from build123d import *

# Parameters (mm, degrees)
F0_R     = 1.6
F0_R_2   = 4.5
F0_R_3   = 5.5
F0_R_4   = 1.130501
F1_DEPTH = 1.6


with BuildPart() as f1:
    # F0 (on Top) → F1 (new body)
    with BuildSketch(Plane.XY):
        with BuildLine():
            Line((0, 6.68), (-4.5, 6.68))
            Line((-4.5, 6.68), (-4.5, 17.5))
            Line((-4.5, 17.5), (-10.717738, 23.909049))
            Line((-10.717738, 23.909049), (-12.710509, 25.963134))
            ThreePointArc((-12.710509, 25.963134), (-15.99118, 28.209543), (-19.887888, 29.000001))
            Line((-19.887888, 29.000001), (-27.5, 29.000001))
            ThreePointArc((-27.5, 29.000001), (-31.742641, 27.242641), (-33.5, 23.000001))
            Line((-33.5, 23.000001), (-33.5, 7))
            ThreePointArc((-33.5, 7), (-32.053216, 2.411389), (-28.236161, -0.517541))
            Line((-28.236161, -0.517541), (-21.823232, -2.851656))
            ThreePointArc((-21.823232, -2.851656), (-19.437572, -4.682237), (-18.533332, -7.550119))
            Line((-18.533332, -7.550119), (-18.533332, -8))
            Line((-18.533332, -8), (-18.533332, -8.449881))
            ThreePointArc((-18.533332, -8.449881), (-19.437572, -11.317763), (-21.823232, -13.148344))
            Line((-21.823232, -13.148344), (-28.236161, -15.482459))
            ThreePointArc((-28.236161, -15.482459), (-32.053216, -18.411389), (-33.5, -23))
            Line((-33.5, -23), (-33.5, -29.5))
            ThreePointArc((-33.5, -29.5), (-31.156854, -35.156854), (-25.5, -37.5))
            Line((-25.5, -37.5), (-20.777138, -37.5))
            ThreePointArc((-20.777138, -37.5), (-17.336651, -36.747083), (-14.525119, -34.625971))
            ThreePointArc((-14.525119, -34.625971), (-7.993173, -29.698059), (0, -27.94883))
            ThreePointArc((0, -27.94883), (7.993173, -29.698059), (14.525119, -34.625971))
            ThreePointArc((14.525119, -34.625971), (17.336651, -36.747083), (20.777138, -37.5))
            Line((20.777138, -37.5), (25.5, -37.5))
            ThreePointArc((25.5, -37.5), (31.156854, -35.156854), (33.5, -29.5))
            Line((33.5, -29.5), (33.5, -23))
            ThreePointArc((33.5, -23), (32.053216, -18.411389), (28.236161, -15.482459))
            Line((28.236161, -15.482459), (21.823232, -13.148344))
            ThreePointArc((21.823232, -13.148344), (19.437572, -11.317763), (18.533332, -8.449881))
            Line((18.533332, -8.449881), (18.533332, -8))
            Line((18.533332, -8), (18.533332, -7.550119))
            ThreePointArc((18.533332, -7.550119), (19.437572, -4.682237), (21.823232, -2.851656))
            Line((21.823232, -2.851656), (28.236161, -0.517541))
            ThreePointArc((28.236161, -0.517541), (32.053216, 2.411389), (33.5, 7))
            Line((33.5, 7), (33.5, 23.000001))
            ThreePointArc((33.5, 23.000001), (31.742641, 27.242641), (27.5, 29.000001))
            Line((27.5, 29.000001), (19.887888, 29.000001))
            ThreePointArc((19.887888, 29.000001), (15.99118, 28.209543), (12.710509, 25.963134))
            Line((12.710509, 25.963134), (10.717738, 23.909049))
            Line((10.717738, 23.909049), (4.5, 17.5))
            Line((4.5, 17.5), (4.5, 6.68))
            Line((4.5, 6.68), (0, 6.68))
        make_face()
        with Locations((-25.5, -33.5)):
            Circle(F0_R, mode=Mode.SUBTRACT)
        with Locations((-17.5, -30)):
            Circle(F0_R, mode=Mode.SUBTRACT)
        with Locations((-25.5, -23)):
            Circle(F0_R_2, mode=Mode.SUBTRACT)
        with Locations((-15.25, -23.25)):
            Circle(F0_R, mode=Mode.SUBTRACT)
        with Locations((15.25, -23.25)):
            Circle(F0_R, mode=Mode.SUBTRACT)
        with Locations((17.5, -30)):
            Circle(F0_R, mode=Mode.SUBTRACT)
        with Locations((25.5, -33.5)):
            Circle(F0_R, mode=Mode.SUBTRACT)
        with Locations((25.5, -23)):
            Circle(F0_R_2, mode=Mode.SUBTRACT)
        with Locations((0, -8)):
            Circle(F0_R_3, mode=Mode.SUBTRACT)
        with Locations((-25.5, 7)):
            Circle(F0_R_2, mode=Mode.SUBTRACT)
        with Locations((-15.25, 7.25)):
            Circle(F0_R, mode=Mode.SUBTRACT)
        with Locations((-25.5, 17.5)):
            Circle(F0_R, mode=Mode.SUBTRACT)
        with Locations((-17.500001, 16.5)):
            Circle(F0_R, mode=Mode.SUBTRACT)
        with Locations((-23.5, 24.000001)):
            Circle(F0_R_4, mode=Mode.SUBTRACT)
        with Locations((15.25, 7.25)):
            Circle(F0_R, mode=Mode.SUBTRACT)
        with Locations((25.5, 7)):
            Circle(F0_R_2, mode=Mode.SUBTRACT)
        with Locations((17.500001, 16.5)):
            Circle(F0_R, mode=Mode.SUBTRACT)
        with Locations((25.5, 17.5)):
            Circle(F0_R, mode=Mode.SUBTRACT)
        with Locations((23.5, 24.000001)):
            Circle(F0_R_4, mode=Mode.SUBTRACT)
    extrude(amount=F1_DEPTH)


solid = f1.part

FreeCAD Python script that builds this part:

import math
import FreeCAD as App
import Part
import Sketcher
Q = App.Units.Quantity

doc = App.newDocument("Part")
body = doc.addObject("PartDesign::Body", "Body")

sketch1 = doc.addObject("Sketcher::SketchObject", "Sketch")
body.addObject(sketch1)
sketch1.AttachmentSupport = (doc.XY_Plane, [""])
sketch1.MapMode = "FlatFace"
sketch1.addGeometry(Part.LineSegment(App.Vector(-4.5, 6.7, 0), App.Vector(-4.5, 17.5, 0)), False)
sketch1.addGeometry(Part.LineSegment(App.Vector(-4.5, 17.5, 0), App.Vector(-10.7, 23.9, 0)), False)
sketch1.addGeometry(Part.LineSegment(App.Vector(-10.7, 23.9, 0), App.Vector(-12.7, 26, 0)), False)
sketch1.addGeometry(Part.ArcOfCircle(Part.Circle(App.Vector(-19.9, 19, 0), App.Vector(0, 0, 1), 10), math.radians(44), math.radians(90)), False)
sketch1.addGeometry(Part.LineSegment(App.Vector(-19.9, 29, 0), App.Vector(-27.5, 29, 0)), False)
sketch1.addGeometry(Part.ArcOfCircle(Part.Circle(App.Vector(-27.5, 23, 0), App.Vector(0, 0, 1), 6), math.radians(90), math.radians(180)), False)
sketch1.addGeometry(Part.LineSegment(App.Vector(-33.5, 23, 0), App.Vector(-33.5, 7, 0)), False)
sketch1.addGeometry(Part.ArcOfCircle(Part.Circle(App.Vector(-25.5, 7, 0), App.Vector(0, 0, 1), 8), math.radians(-180), math.radians(-110)), False)
sketch1.addGeometry(Part.LineSegment(App.Vector(-28.2, -0.5, 0), App.Vector(-21.8, -2.9, 0)), False)
sketch1.addGeometry(Part.ArcOfCircle(Part.Circle(App.Vector(-23.5, -7.6, 0), App.Vector(0, 0, 1), 5), math.radians(0), math.radians(70)), False)
sketch1.addGeometry(Part.LineSegment(App.Vector(-18.5, -7.6, 0), App.Vector(-18.5, -8.4, 0)), False)
sketch1.addGeometry(Part.ArcOfCircle(Part.Circle(App.Vector(-23.5, -8.4, 0), App.Vector(0, 0, 1), 5), math.radians(-70), math.radians(0)), False)
sketch1.addGeometry(Part.LineSegment(App.Vector(-21.8, -13.1, 0), App.Vector(-28.2, -15.5, 0)), False)
sketch1.addGeometry(Part.ArcOfCircle(Part.Circle(App.Vector(-25.5, -23, 0), App.Vector(0, 0, 1), 8), math.radians(110), math.radians(180)), False)
sketch1.addGeometry(Part.LineSegment(App.Vector(-33.5, -23, 0), App.Vector(-33.5, -29.5, 0)), False)
sketch1.addGeometry(Part.ArcOfCircle(Part.Circle(App.Vector(-25.5, -29.5, 0), App.Vector(0, 0, 1), 8), math.radians(-180), math.radians(-90)), False)
sketch1.addGeometry(Part.LineSegment(App.Vector(-25.5, -37.5, 0), App.Vector(-20.8, -37.5, 0)), False)
sketch1.addGeometry(Part.ArcOfCircle(Part.Circle(App.Vector(-20.8, -29.3, 0), App.Vector(0, 0, 1), 8.2), math.radians(-90), math.radians(-41)), False)
sketch1.addGeometry(Part.ArcOfCircle(Part.Circle(App.Vector(0, -47.1, 0), App.Vector(0, 0, 1), 19.1), math.radians(90), math.radians(139)), False)
sketch1.addGeometry(Part.ArcOfCircle(Part.Circle(App.Vector(0, -47.1, 0), App.Vector(0, 0, 1), 19.1), math.radians(41), math.radians(90)), False)
sketch1.addGeometry(Part.ArcOfCircle(Part.Circle(App.Vector(20.8, -29.3, 0), App.Vector(0, 0, 1), 8.2), math.radians(-139), math.radians(-90)), False)
sketch1.addGeometry(Part.LineSegment(App.Vector(20.8, -37.5, 0), App.Vector(25.5, -37.5, 0)), False)
sketch1.addGeometry(Part.ArcOfCircle(Part.Circle(App.Vector(25.5, -29.5, 0), App.Vector(0, 0, 1), 8), math.radians(-90), math.radians(0)), False)
sketch1.addGeometry(Part.LineSegment(App.Vector(33.5, -29.5, 0), App.Vector(33.5, -23, 0)), False)
sketch1.addGeometry(Part.ArcOfCircle(Part.Circle(App.Vector(25.5, -23, 0), App.Vector(0, 0, 1), 8), math.radians(0), math.radians(70)), False)
sketch1.addGeometry(Part.LineSegment(App.Vector(28.2, -15.5, 0), App.Vector(21.8, -13.1, 0)), False)
sketch1.addGeometry(Part.ArcOfCircle(Part.Circle(App.Vector(23.5, -8.4, 0), App.Vector(0, 0, 1), 5), math.radians(-180), math.radians(-110)), False)
sketch1.addGeometry(Part.LineSegment(App.Vector(18.5, -8.4, 0), App.Vector(18.5, -7.6, 0)), False)
sketch1.addGeometry(Part.ArcOfCircle(Part.Circle(App.Vector(23.5, -7.6, 0), App.Vector(0, 0, 1), 5), math.radians(110), math.radians(180)), False)
sketch1.addGeometry(Part.LineSegment(App.Vector(21.8, -2.9, 0), App.Vector(28.2, -0.5, 0)), False)
sketch1.addGeometry(Part.ArcOfCircle(Part.Circle(App.Vector(25.5, 7, 0), App.Vector(0, 0, 1), 8), math.radians(-70), math.radians(0)), False)
sketch1.addGeometry(Part.LineSegment(App.Vector(33.5, 7, 0), App.Vector(33.5, 23, 0)), False)
sketch1.addGeometry(Part.ArcOfCircle(Part.Circle(App.Vector(27.5, 23, 0), App.Vector(0, 0, 1), 6), math.radians(0), math.radians(90)), False)
sketch1.addGeometry(Part.LineSegment(App.Vector(27.5, 29, 0), App.Vector(19.9, 29, 0)), False)
sketch1.addGeometry(Part.ArcOfCircle(Part.Circle(App.Vector(19.9, 19, 0), App.Vector(0, 0, 1), 10), math.radians(90), math.radians(136)), False)
sketch1.addGeometry(Part.LineSegment(App.Vector(12.7, 26, 0), App.Vector(10.7, 23.9, 0)), False)
sketch1.addGeometry(Part.LineSegment(App.Vector(10.7, 23.9, 0), App.Vector(4.5, 17.5, 0)), False)
sketch1.addGeometry(Part.LineSegment(App.Vector(4.5, 17.5, 0), App.Vector(4.5, 6.7, 0)), False)
sketch1.addGeometry(Part.LineSegment(App.Vector(4.5, 6.7, 0), App.Vector(-4.5, 6.7, 0)), False)
sketch1.addGeometry(Part.Circle(App.Vector(-25.5, -33.5, 0), App.Vector(0, 0, 1), 1.6), False)
sketch1.addGeometry(Part.Circle(App.Vector(-17.5, -30, 0), App.Vector(0, 0, 1), 1.6), False)
sketch1.addGeometry(Part.Circle(App.Vector(-25.5, -23, 0), App.Vector(0, 0, 1), 4.5), False)
sketch1.addGeometry(Part.Circle(App.Vector(-15.2, -23.2, 0), App.Vector(0, 0, 1), 1.6), False)
sketch1.addGeometry(Part.Circle(App.Vector(17.5, -30, 0), App.Vector(0, 0, 1), 1.6), False)
sketch1.addGeometry(Part.Circle(App.Vector(25.5, -33.5, 0), App.Vector(0, 0, 1), 1.6), False)
sketch1.addGeometry(Part.Circle(App.Vector(15.2, -23.2, 0), App.Vector(0, 0, 1), 1.6), False)
sketch1.addGeometry(Part.Circle(App.Vector(25.5, -23, 0), App.Vector(0, 0, 1), 4.5), False)
sketch1.addGeometry(Part.Circle(App.Vector(0, -8, 0), App.Vector(0, 0, 1), 5.5), False)
sketch1.addGeometry(Part.Circle(App.Vector(-25.5, 7, 0), App.Vector(0, 0, 1), 4.5), False)
sketch1.addGeometry(Part.Circle(App.Vector(-15.2, 7.2, 0), App.Vector(0, 0, 1), 1.6), False)
sketch1.addGeometry(Part.Circle(App.Vector(-25.5, 17.5, 0), App.Vector(0, 0, 1), 1.6), False)
sketch1.addGeometry(Part.Circle(App.Vector(-17.5, 16.5, 0), App.Vector(0, 0, 1), 1.6), False)
sketch1.addGeometry(Part.Circle(App.Vector(-23.5, 24, 0), App.Vector(0, 0, 1), 1.1), False)
sketch1.addGeometry(Part.Circle(App.Vector(15.2, 7.2, 0), App.Vector(0, 0, 1), 1.6), False)
sketch1.addGeometry(Part.Circle(App.Vector(25.5, 7, 0), App.Vector(0, 0, 1), 4.5), False)
sketch1.addGeometry(Part.Circle(App.Vector(17.5, 16.5, 0), App.Vector(0, 0, 1), 1.6), False)
sketch1.addGeometry(Part.Circle(App.Vector(25.5, 17.5, 0), App.Vector(0, 0, 1), 1.6), False)
sketch1.addGeometry(Part.Circle(App.Vector(23.5, 24, 0), App.Vector(0, 0, 1), 1.1), False)
sketch1.addConstraint(Sketcher.Constraint("Coincident", 0, 2, 1, 1))
sketch1.addConstraint(Sketcher.Constraint("Coincident", 1, 2, 2, 1))
sketch1.addConstraint(Sketcher.Constraint("Tangent", 2, 2, 3, 1))
sketch1.addConstraint(Sketcher.Constraint("Tangent", 3, 2, 4, 1))
sketch1.addConstraint(Sketcher.Constraint("Tangent", 4, 2, 5, 1))
sketch1.addConstraint(Sketcher.Constraint("Tangent", 5, 2, 6, 1))
sketch1.addConstraint(Sketcher.Constraint("Tangent", 6, 2, 7, 1))
sketch1.addConstraint(Sketcher.Constraint("Tangent", 7, 2, 8, 1))
sketch1.addConstraint(Sketcher.Constraint("Tangent", 8, 2, 9, 2))
sketch1.addConstraint(Sketcher.Constraint("Tangent", 9, 1, 10, 1))
sketch1.addConstraint(Sketcher.Constraint("Tangent", 10, 2, 11, 2))
sketch1.addConstraint(Sketcher.Constraint("Tangent", 11, 1, 12, 1))
sketch1.addConstraint(Sketcher.Constraint("Tangent", 12, 2, 13, 1))
sketch1.addConstraint(Sketcher.Constraint("Tangent", 13, 2, 14, 1))
sketch1.addConstraint(Sketcher.Constraint("Tangent", 14, 2, 15, 1))
sketch1.addConstraint(Sketcher.Constraint("Tangent", 15, 2, 16, 1))
sketch1.addConstraint(Sketcher.Constraint("Tangent", 16, 2, 17, 1))
sketch1.addConstraint(Sketcher.Constraint("Tangent", 17, 2, 18, 2))
sketch1.addConstraint(Sketcher.Constraint("Tangent", 18, 1, 19, 2))
sketch1.addConstraint(Sketcher.Constraint("Tangent", 19, 1, 20, 1))
sketch1.addConstraint(Sketcher.Constraint("Tangent", 20, 2, 21, 1))
sketch1.addConstraint(Sketcher.Constraint("Tangent", 21, 2, 22, 1))
sketch1.addConstraint(Sketcher.Constraint("Tangent", 22, 2, 23, 1))
sketch1.addConstraint(Sketcher.Constraint("Tangent", 23, 2, 24, 1))
sketch1.addConstraint(Sketcher.Constraint("Tangent", 24, 2, 25, 1))
sketch1.addConstraint(Sketcher.Constraint("Tangent", 25, 2, 26, 2))
sketch1.addConstraint(Sketcher.Constraint("Tangent", 26, 1, 27, 1))
sketch1.addConstraint(Sketcher.Constraint("Tangent", 27, 2, 28, 2))
sketch1.addConstraint(Sketcher.Constraint("Tangent", 28, 1, 29, 1))
sketch1.addConstraint(Sketcher.Constraint("Tangent", 29, 2, 30, 1))
sketch1.addConstraint(Sketcher.Constraint("Tangent", 30, 2, 31, 1))
sketch1.addConstraint(Sketcher.Constraint("Tangent", 31, 2, 32, 1))
sketch1.addConstraint(Sketcher.Constraint("Tangent", 32, 2, 33, 1))
sketch1.addConstraint(Sketcher.Constraint("Tangent", 33, 2, 34, 1))
sketch1.addConstraint(Sketcher.Constraint("Tangent", 34, 2, 35, 1))
sketch1.addConstraint(Sketcher.Constraint("Coincident", 35, 2, 36, 1))
sketch1.addConstraint(Sketcher.Constraint("Coincident", 36, 2, 37, 1))
sketch1.addConstraint(Sketcher.Constraint("Coincident", 37, 2, 38, 1))
sketch1.addConstraint(Sketcher.Constraint("Coincident", 38, 2, 0, 1))
sketch1.addConstraint(Sketcher.Constraint("Vertical", 0))
sketch1.addConstraint(Sketcher.Constraint("Horizontal", 4))
sketch1.addConstraint(Sketcher.Constraint("Vertical", 6))
sketch1.addConstraint(Sketcher.Constraint("Vertical", 10))
sketch1.addConstraint(Sketcher.Constraint("Vertical", 14))
sketch1.addConstraint(Sketcher.Constraint("Horizontal", 16))
sketch1.addConstraint(Sketcher.Constraint("Horizontal", 21))
sketch1.addConstraint(Sketcher.Constraint("Vertical", 23))
sketch1.addConstraint(Sketcher.Constraint("Vertical", 27))
sketch1.addConstraint(Sketcher.Constraint("Vertical", 31))
sketch1.addConstraint(Sketcher.Constraint("Horizontal", 33))
sketch1.addConstraint(Sketcher.Constraint("Vertical", 37))
sketch1.addConstraint(Sketcher.Constraint("Horizontal", 38))
sketch1.addConstraint(Sketcher.Constraint("Coincident", 41, 3, 13, 3))
sketch1.addConstraint(Sketcher.Constraint("Coincident", 46, 3, 24, 3))
sketch1.addConstraint(Sketcher.Constraint("Coincident", 48, 3, 7, 3))
sketch1.addConstraint(Sketcher.Constraint("Coincident", 54, 3, 30, 3))
sketch1.addConstraint(Sketcher.Constraint("Equal", 9, 11))
sketch1.addConstraint(Sketcher.Constraint("Equal", 7, 13))
sketch1.addConstraint(Sketcher.Constraint("Equal", 13, 15))
sketch1.addConstraint(Sketcher.Constraint("Equal", 18, 19))
sketch1.addConstraint(Sketcher.Constraint("Equal", 17, 20))
sketch1.addConstraint(Sketcher.Constraint("Equal", 15, 22))
sketch1.addConstraint(Sketcher.Constraint("Equal", 22, 24))
sketch1.addConstraint(Sketcher.Constraint("Equal", 11, 26))
sketch1.addConstraint(Sketcher.Constraint("Equal", 26, 28))
sketch1.addConstraint(Sketcher.Constraint("Equal", 24, 30))
sketch1.addConstraint(Sketcher.Constraint("Equal", 5, 32))
sketch1.addConstraint(Sketcher.Constraint("Equal", 3, 34))
sketch1.addConstraint(Sketcher.Constraint("Equal", 39, 40))
sketch1.addConstraint(Sketcher.Constraint("Equal", 40, 42))
sketch1.addConstraint(Sketcher.Constraint("Equal", 42, 43))
sketch1.addConstraint(Sketcher.Constraint("Equal", 43, 44))
sketch1.addConstraint(Sketcher.Constraint("Equal", 44, 45))
sketch1.addConstraint(Sketcher.Constraint("Equal", 41, 46))
sketch1.addConstraint(Sketcher.Constraint("Equal", 46, 48))
sketch1.addConstraint(Sketcher.Constraint("Equal", 45, 49))
sketch1.addConstraint(Sketcher.Constraint("Equal", 49, 50))
sketch1.addConstraint(Sketcher.Constraint("Equal", 50, 51))
sketch1.addConstraint(Sketcher.Constraint("Equal", 51, 53))
sketch1.addConstraint(Sketcher.Constraint("Equal", 48, 54))
sketch1.addConstraint(Sketcher.Constraint("Equal", 53, 55))
sketch1.addConstraint(Sketcher.Constraint("Equal", 55, 56))
sketch1.addConstraint(Sketcher.Constraint("Equal", 52, 57))
sketch1.addConstraint(Sketcher.Constraint("Symmetric", 5, 2, 23, 2, -1, 1))
sketch1.addConstraint(Sketcher.Constraint("Symmetric", 13, 2, 31, 2, -1, 1))
sketch1.addConstraint(Sketcher.Constraint("Symmetric", 17, 3, 20, 3, -2))
sketch1.addConstraint(Sketcher.Constraint("Symmetric", 13, 3, 24, 3, -2))
sketch1.addConstraint(Sketcher.Constraint("Symmetric", 11, 3, 26, 3, -2))
sketch1.addConstraint(Sketcher.Constraint("Symmetric", 40, 3, 43, 3, -2))
sketch1.addConstraint(Sketcher.Constraint("Symmetric", 39, 3, 44, 3, -2))
sketch1.addConstraint(Sketcher.Constraint("Symmetric", 42, 3, 45, 3, -2))
sketch1.addConstraint(Sketcher.Constraint("Symmetric", 49, 3, 53, 3, -2))
sketch1.addConstraint(Sketcher.Constraint("Symmetric", 51, 3, 55, 3, -2))
sketch1.addConstraint(Sketcher.Constraint("Symmetric", 50, 3, 56, 3, -2))
sketch1.addConstraint(Sketcher.Constraint("Symmetric", 52, 3, 57, 3, -2))
sketch1.addConstraint(Sketcher.Constraint("Symmetric", 8, 2, 28, 1, -2))
sketch1.addConstraint(Sketcher.Constraint("Symmetric", 2, 2, 34, 2, -2))
sketch1.addConstraint(Sketcher.Constraint("Symmetric", 0, 2, 36, 2, -2))
sketch1.addConstraint(Sketcher.Constraint("PointOnObject", 47, 3, -2))
sketch1.addConstraint(Sketcher.Constraint("PointOnObject", 18, 1, -2))
sketch1.addConstraint(Sketcher.Constraint("Parallel", 1, 2))
sketch1.addConstraint(Sketcher.Constraint("Parallel", 8, 25))
sketch1.addConstraint(Sketcher.Constraint("Horizontal", 56, 3, 0, 2))
sketch1.addConstraint(Sketcher.Constraint("Horizontal", 1, 2, 35, 2))
sketch1.addConstraint(Sketcher.Constraint("Vertical", 15, 3, 39, 3))
sketch1.addConstraint(Sketcher.Constraint("Vertical", 42, 3, 49, 3))
sketch1.addConstraint(Sketcher.Constraint("Vertical", 48, 3, 50, 3))
sketch1.addConstraint(Sketcher.Constraint("Vertical", 40, 3, 51, 3))
sketch1.addConstraint(Sketcher.Constraint("Diameter", 41, Q("9 mm")))
sketch1.addConstraint(Sketcher.Constraint("Diameter", 47, Q("11 mm")))
sketch1.addConstraint(Sketcher.Constraint("Radius", 3, Q("9.999999 mm")))
sketch1.addConstraint(Sketcher.Constraint("Radius", 5, Q("6.000001 mm")))
sketch1.addConstraint(Sketcher.Constraint("Radius", 9, Q("5 mm")))
sketch1.addConstraint(Sketcher.Constraint("Radius", 15, Q("8.000001 mm")))
sketch1.addConstraint(Sketcher.Constraint("Diameter", 39, Q("3.2 mm")))
sketch1.addConstraint(Sketcher.Constraint("DistanceX", 38, 2, 38, 1, Q("9 mm")))
sketch1.addConstraint(Sketcher.Constraint("DistanceY", 6, 2, 6, 1, Q("16.000001 mm")))
sketch1.addConstraint(Sketcher.Constraint("Angle", 8, Q("-19.999998 deg")))
sketch1.addConstraint(Sketcher.Constraint("Diameter", 52, Q("2.261002 mm")))
sketch1.addConstraint(Sketcher.Constraint("DistanceY", 14, 2, 14, 1, Q("6.5 mm")))
sketch1.addConstraint(Sketcher.Constraint("DistanceY", -1, 1, 5, 3, Q("23 mm")))
sketch1.addConstraint(Sketcher.Constraint("DistanceY", 40, 3, -1, 1, Q("30 mm")))
sketch1.addConstraint(Sketcher.Constraint("DistanceY", 47, 3, -1, 1, Q("8 mm")))
sketch1.addConstraint(Sketcher.Constraint("DistanceY", -1, 1, 52, 3, Q("24.000001 mm")))
sketch1.addConstraint(Sketcher.Constraint("DistanceY", 0, 1, 0, 2, Q("10.82 mm")))
sketch1.addConstraint(Sketcher.Constraint("DistanceX", 5, 3, -1, 1, Q("27.499999 mm")))
sketch1.addConstraint(Sketcher.Constraint("DistanceY", 39, 3, -1, 1, Q("33.5 mm")))
sketch1.addConstraint(Sketcher.Constraint("DistanceX", 40, 3, -1, 1, Q("17.5 mm")))
sketch1.addConstraint(Sketcher.Constraint("DistanceY", -1, 1, 50, 3, Q("17.5 mm")))
sketch1.addConstraint(Sketcher.Constraint("DistanceY", -1, 1, 51, 3, Q("16.5 mm")))
sketch1.addConstraint(Sketcher.Constraint("DistanceX", 52, 3, -1, 1, Q("23.5 mm")))
sketch1.addConstraint(Sketcher.Constraint("DistanceX", 42, 3, -1, 1, Q("15.25 mm")))
sketch1.addConstraint(Sketcher.Constraint("DistanceY", 42, 3, -1, 1, Q("23.25 mm")))
sketch1.addConstraint(Sketcher.Constraint("DistanceY", -1, 1, 49, 3, Q("7.25 mm")))
sketch1.addConstraint(Sketcher.Constraint("Radius", 18, Q("19.13718 mm")))
sketch1.addConstraint(Sketcher.Constraint("Radius", 17, Q("8.237173 mm")))
sketch1.addConstraint(Sketcher.Constraint("DistanceX", 4, 2, 4, 1, Q("7.612112 mm")))
sketch1.addConstraint(Sketcher.Constraint("DistanceX", 16, 1, 16, 2, Q("4.722862 mm")))
sketch1.addConstraint(Sketcher.Constraint("DistanceY", 10, 2, 10, 1, Q("0.899762 mm")))
sketch1.addConstraint(Sketcher.Constraint("Distance", 1, Q("8.929511 mm")))
pad1 = doc.addObject("PartDesign::Pad", "Pad")
body.addObject(pad1)
pad1.Profile = sketch1
pad1.Length = 1.6

doc.recompute()
